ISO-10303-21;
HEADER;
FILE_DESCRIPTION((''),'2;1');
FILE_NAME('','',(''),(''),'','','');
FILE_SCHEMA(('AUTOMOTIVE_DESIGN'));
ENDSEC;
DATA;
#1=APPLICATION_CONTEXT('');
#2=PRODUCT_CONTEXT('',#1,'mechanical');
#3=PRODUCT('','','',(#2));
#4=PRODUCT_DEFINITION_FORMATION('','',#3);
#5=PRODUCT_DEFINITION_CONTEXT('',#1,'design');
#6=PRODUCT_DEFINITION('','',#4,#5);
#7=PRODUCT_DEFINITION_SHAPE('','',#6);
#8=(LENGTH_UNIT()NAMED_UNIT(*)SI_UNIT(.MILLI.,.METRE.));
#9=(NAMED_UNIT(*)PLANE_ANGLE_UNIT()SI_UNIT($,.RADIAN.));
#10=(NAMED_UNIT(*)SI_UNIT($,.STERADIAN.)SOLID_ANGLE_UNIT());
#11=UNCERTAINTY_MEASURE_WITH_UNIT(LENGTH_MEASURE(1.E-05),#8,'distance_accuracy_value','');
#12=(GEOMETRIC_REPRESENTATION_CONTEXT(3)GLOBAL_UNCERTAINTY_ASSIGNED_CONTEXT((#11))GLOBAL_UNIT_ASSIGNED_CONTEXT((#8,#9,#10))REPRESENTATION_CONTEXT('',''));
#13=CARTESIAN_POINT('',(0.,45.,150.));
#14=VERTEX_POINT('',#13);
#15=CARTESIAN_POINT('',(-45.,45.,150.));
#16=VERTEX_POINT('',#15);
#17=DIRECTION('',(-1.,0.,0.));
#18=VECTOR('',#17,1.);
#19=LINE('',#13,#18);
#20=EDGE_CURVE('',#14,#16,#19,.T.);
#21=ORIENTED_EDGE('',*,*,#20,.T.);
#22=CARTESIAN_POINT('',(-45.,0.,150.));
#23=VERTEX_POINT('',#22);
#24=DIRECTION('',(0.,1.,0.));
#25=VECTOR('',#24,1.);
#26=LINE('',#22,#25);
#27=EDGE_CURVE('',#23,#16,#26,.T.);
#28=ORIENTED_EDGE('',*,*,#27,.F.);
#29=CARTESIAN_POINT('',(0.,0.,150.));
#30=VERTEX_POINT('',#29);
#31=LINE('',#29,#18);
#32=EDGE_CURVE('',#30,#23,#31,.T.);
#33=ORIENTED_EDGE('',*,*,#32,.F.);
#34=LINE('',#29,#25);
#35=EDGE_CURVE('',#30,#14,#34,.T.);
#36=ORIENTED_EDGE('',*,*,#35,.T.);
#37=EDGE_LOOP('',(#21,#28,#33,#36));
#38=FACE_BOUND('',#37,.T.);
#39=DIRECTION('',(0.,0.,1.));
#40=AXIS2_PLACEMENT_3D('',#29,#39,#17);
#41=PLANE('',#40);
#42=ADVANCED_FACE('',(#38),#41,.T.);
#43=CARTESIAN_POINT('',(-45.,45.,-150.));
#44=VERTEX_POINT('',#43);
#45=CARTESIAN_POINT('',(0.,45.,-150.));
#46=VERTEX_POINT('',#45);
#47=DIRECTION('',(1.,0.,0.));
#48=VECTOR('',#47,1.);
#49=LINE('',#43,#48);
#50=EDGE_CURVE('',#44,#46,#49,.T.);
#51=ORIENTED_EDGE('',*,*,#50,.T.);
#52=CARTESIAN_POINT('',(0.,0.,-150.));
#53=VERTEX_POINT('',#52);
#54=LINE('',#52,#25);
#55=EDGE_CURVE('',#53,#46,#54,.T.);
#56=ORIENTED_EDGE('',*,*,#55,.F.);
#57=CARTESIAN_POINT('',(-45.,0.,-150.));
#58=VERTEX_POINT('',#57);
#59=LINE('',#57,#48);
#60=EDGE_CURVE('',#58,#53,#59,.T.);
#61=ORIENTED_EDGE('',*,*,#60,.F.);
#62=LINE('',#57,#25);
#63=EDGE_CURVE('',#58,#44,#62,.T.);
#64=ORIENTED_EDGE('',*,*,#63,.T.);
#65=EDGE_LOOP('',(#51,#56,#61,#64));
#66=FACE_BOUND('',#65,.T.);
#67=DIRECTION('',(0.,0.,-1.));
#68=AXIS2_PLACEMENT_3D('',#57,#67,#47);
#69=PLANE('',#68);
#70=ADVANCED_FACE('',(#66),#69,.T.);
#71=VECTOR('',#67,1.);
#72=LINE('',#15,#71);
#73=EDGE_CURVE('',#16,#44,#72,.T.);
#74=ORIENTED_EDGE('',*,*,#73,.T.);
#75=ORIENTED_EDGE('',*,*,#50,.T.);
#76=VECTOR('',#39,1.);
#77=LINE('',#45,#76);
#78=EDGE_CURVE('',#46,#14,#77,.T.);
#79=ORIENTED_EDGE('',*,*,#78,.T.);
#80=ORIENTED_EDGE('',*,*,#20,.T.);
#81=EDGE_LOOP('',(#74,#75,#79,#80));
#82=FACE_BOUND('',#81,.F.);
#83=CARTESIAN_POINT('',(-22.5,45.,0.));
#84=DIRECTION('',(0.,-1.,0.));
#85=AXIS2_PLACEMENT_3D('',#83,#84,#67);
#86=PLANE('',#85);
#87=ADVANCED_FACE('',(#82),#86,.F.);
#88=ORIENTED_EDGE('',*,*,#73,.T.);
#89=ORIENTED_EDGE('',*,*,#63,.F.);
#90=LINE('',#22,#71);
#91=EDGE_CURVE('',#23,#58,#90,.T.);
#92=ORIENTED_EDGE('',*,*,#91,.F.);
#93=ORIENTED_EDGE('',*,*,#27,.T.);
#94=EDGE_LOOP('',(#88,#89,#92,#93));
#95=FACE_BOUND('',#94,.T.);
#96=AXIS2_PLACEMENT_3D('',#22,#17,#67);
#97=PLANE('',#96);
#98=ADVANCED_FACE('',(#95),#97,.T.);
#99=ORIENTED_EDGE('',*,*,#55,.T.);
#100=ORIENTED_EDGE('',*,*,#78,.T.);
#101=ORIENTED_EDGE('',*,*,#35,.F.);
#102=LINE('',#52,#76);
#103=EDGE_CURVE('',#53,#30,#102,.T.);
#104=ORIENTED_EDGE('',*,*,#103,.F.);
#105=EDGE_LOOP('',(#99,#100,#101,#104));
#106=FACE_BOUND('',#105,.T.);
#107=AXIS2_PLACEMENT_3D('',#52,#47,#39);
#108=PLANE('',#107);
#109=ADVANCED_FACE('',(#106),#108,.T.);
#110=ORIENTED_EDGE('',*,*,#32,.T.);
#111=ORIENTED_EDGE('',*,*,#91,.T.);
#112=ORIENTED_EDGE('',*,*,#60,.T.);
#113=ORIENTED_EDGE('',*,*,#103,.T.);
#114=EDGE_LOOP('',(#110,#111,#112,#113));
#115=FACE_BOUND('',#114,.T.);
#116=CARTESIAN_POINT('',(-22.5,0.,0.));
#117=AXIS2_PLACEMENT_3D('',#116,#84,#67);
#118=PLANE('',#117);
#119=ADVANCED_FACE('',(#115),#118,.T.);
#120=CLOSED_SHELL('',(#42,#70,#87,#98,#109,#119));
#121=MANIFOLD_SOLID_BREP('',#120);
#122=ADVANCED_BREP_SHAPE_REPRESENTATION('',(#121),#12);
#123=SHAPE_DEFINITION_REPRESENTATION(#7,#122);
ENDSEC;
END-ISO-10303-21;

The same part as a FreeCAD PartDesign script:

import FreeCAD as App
import Part
import Sketcher

V = App.Vector
Q = App.Units.Quantity


def add_polygon(sketch, points):
    """Adds a closed chain of lines whose ends are joined by coincident constraints."""
    first, n = sketch.GeometryCount, len(points)
    for a, b in zip(points, points[1:] + points[:1]):
        sketch.addGeometry(Part.LineSegment(App.Vector(*a, 0), App.Vector(*b, 0)), False)
    for i in range(n):
        sketch.addConstraint(Sketcher.Constraint("Coincident", first + i, 2, first + (i + 1) % n, 1))

doc = App.newDocument("Part")
body = doc.addObject("PartDesign::Body", "Body")

# Sketch on XZ plane
sketch1 = body.newObject("Sketcher::SketchObject", "Sketch")
sketch1.AttachmentSupport = (doc.getObject("XZ_Plane"), [""])
sketch1.MapMode = "FlatFace"
add_polygon(sketch1, [(-45, -150), (0, -150), (0, 150), (-45, 150)])  # lines 0-3
sketch1.addConstraint([
    Sketcher.Constraint("Horizontal", 0),
    Sketcher.Constraint("Vertical", 1),
    Sketcher.Constraint("Horizontal", 2),
    Sketcher.Constraint("Vertical", 3),
    Sketcher.Constraint("Symmetric", 0, 2, 1, 2, -1, 1),
    Sketcher.Constraint("DistanceX", 0, 1, 0, 2, Q("45 mm")),
    Sketcher.Constraint("DistanceY", 1, 1, 1, 2, Q("300 mm")),
])
pad1 = body.newObject("PartDesign::Pad", "Pad")
pad1.Profile = sketch1
pad1.Length = 45
pad1.Reversed = True

doc.recompute()
